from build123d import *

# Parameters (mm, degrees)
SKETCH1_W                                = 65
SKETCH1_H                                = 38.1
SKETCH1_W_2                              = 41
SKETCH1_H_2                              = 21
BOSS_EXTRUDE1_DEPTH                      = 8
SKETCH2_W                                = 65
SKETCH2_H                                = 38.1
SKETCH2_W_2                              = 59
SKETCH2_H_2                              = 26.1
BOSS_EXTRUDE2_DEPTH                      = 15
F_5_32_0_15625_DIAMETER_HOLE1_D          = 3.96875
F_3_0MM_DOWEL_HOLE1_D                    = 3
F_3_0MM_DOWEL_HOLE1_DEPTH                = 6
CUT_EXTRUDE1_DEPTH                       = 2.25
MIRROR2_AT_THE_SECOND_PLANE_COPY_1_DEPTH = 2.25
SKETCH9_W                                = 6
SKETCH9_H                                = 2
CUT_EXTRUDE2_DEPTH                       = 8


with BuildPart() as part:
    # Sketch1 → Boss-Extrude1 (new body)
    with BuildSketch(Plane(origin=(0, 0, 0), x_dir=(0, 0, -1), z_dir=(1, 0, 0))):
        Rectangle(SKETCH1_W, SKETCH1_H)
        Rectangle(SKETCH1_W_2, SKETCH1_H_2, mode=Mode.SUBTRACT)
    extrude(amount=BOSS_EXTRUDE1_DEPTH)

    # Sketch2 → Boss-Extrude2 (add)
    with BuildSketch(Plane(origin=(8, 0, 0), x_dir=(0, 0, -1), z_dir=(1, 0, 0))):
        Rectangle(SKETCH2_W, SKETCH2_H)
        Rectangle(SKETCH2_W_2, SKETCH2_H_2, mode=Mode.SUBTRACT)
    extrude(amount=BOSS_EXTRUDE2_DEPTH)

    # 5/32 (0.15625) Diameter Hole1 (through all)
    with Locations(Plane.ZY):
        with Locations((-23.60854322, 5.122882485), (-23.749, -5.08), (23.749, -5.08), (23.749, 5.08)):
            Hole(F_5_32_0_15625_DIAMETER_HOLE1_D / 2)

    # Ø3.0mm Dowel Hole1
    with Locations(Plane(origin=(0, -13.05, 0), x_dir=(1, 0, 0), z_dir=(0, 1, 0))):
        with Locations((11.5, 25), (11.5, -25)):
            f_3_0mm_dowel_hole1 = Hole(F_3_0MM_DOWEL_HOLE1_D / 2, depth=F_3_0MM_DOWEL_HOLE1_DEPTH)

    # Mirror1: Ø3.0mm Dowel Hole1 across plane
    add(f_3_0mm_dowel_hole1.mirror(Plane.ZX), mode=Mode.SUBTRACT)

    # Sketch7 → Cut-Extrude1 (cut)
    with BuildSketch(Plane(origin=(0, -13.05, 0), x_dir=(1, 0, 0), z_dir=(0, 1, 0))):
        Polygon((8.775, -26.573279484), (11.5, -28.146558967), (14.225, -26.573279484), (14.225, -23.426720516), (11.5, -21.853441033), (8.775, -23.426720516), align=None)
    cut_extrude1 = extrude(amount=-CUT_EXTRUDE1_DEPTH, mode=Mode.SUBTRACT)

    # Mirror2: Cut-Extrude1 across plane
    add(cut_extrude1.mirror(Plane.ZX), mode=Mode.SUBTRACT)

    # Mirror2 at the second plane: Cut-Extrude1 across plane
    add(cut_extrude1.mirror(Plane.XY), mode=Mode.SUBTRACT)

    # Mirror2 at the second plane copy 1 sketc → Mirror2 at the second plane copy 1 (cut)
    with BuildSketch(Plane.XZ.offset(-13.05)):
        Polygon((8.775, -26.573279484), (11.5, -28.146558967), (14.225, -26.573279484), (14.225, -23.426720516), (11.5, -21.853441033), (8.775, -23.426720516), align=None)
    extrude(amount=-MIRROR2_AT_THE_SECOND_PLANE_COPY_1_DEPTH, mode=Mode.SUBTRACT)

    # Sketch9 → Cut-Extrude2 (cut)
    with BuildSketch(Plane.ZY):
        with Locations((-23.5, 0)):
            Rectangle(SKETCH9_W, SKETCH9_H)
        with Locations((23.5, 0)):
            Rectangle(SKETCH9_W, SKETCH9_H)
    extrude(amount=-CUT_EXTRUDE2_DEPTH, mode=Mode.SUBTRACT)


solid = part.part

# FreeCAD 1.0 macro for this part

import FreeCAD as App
import Part
import Sketcher

V = App.Vector
Q = App.Units.Quantity

doc = App.newDocument("Part")
body = doc.addObject("PartDesign::Body", "Body")

# Sketch on YZ plane
sketch1 = doc.addObject("Sketcher::SketchObject", "Sketch")
body.addObject(sketch1)
sketch1.AttachmentSupport = (doc.YZ_Plane, [""])
sketch1.MapMode = "FlatFace"
sketch1.addGeometry([
    Part.LineSegment(V(19, 32, 0), V(-19, 32, 0)),  # 0
    Part.LineSegment(V(-19, 32, 0), V(-19, -32, 0)),  # 1
    Part.LineSegment(V(-19, -32, 0), V(19, -32, 0)),  # 2
    Part.LineSegment(V(19, -32, 0), V(19, 32, 0)),  # 3
    Part.LineSegment(V(-10, -20, 0), V(-10, 20, 0)),  # 4
    Part.LineSegment(V(-10, 20, 0), V(10, 20, 0)),  # 5
    Part.LineSegment(V(10, 20, 0), V(10, -20, 0)),  # 6
    Part.LineSegment(V(10, -20, 0), V(-10, -20, 0)),  # 7
], False)
sketch1.addConstraint([
    Sketcher.Constraint("Coincident", 0, 2, 1, 1),
    Sketcher.Constraint("Coincident", 1, 2, 2, 1),
    Sketcher.Constraint("Coincident", 2, 2, 3, 1),
    Sketcher.Constraint("Coincident", 3, 2, 0, 1),
    Sketcher.Constraint("Coincident", 4, 2, 5, 1),
    Sketcher.Constraint("Coincident", 5, 2, 6, 1),
    Sketcher.Constraint("Coincident", 6, 2, 7, 1),
    Sketcher.Constraint("Coincident", 7, 2, 4, 1),
    Sketcher.Constraint("Horizontal", 0),
    Sketcher.Constraint("Vertical", 1),
    Sketcher.Constraint("Horizontal", 2),
    Sketcher.Constraint("Vertical", 3),
    Sketcher.Constraint("Vertical", 4),
    Sketcher.Constraint("Horizontal", 5),
    Sketcher.Constraint("Vertical", 6),
    Sketcher.Constraint("Horizontal", 7),
    Sketcher.Constraint("Symmetric", 0, 2, 2, 2, -1, 1),
    Sketcher.Constraint("Symmetric", 4, 2, 6, 2, -1, 1),
    Sketcher.Constraint("DistanceX", 5, 1, 5, 2, 21.0),
    Sketcher.Constraint("DistanceY", 1, 2, 1, 1, 65.0),
    Sketcher.Constraint("DistanceY", 4, 1, 4, 2, 41.0),
    Sketcher.Constraint("DistanceX", 0, 2, 0, 1, 38.1),
])
pad1 = doc.addObject("PartDesign::Pad", "Pad")
body.addObject(pad1)
pad1.Profile = sketch1
pad1.Length = 8

# Sketch on YZ plane
sketch2 = doc.addObject("Sketcher::SketchObject", "Sketch001")
body.addObject(sketch2)
sketch2.AttachmentSupport = (doc.YZ_Plane, [""])
sketch2.MapMode = "FlatFace"
sketch2.AttachmentOffset = App.Placement(V(0, 0, 8), App.Rotation())
sketch2.addGeometry([
    Part.LineSegment(V(19, 32, 0), V(-19, 32, 0)),  # 0
    Part.LineSegment(V(-19, 32, 0), V(-19, -32, 0)),  # 1
    Part.LineSegment(V(-19, -32, 0), V(19, -32, 0)),  # 2
    Part.LineSegment(V(19, -32, 0), V(19, 32, 0)),  # 3
    Part.LineSegment(V(-13, -30, 0), V(-13, 30, 0)),  # 4
    Part.LineSegment(V(-13, 30, 0), V(13, 30, 0)),  # 5
    Part.LineSegment(V(13, 30, 0), V(13, -30, 0)),  # 6
    Part.LineSegment(V(13, -30, 0), V(-13, -30, 0)),  # 7
], False)
sketch2.addConstraint([
    Sketcher.Constraint("Coincident", 0, 2, 1, 1),
    Sketcher.Constraint("Coincident", 1, 2, 2, 1),
    Sketcher.Constraint("Coincident", 2, 2, 3, 1),
    Sketcher.Constraint("Coincident", 3, 2, 0, 1),
    Sketcher.Constraint("Coincident", 4, 2, 5, 1),
    Sketcher.Constraint("Coincident", 5, 2, 6, 1),
    Sketcher.Constraint("Coincident", 6, 2, 7, 1),
    Sketcher.Constraint("Coincident", 7, 2, 4, 1),
    Sketcher.Constraint("Horizontal", 0),
    Sketcher.Constraint("Vertical", 1),
    Sketcher.Constraint("Horizontal", 2),
    Sketcher.Constraint("Vertical", 3),
    Sketcher.Constraint("Vertical", 4),
    Sketcher.Constraint("Horizontal", 5),
    Sketcher.Constraint("Vertical", 6),
    Sketcher.Constraint("Horizontal", 7),
    Sketcher.Constraint("Symmetric", 0, 2, 2, 2, -1, 1),
    Sketcher.Constraint("Symmetric", 4, 2, 6, 2, -1, 1),
    Sketcher.Constraint("DistanceY", 1, 2, 1, 1, 65.0),
    Sketcher.Constraint("DistanceY", 4, 1, 4, 2, 59.0),
    Sketcher.Constraint("DistanceX", 0, 2, 0, 1, 38.1),
    Sketcher.Constraint("DistanceX", 5, 1, 5, 2, 26.1),
])
pad2 = doc.addObject("PartDesign::Pad", "Pad001")
body.addObject(pad2)
pad2.Profile = sketch2
pad2.Length = 15

# Sketch on YZ plane
sketch3 = doc.addObject("Sketcher::SketchObject", "Sketch002")
body.addObject(sketch3)
sketch3.AttachmentSupport = (doc.YZ_Plane, [""])
sketch3.MapMode = "FlatFace"
sketch3.addGeometry([
    Part.Circle(V(5.1, -23.6, 0), V(0, 0, 1), 2),
    Part.Circle(V(-5.1, -23.7, 0), V(0, 0, 1), 2),
    Part.Circle(V(-5.1, 23.7, 0), V(0, 0, 1), 2),
    Part.Circle(V(5.1, 23.7, 0), V(0, 0, 1), 2),
], False)
sketch3.addConstraint([
    Sketcher.Constraint("Equal", 0, 1),
    Sketcher.Constraint("Equal", 1, 2),
    Sketcher.Constraint("Equal", 2, 3),
    Sketcher.Constraint("Symmetric", 1, 3, 3, 3, -1, 1),
    Sketcher.Constraint("Symmetric", 2, 3, 3, 3, -2),
    Sketcher.Constraint("Diameter", 0, 3.96875),
    Sketcher.Constraint("DistanceX", 1, 3, -1, 1, 5.08),
    Sketcher.Constraint("DistanceY", 1, 3, -1, 1, 23.749),
    Sketcher.Constraint("DistanceX", -1, 1, 0, 3, 5.122882),
    Sketcher.Constraint("DistanceY", 0, 3, -1, 1, 23.608543),
])
doc.recompute()
hole = doc.addObject("PartDesign::Hole", "Hole")
body.addObject(hole)
hole.Profile = sketch3
hole.ThreadType = "None"
hole.Diameter = 3.96875
hole.DepthType = "ThroughAll"
hole.Reversed = True

# Sketch on XZ plane
sketch4 = doc.addObject("Sketcher::SketchObject", "Sketch003")
body.addObject(sketch4)
sketch4.AttachmentSupport = (doc.XZ_Plane, [""])
sketch4.MapMode = "FlatFace"
sketch4.AttachmentOffset = App.Placement(V(0, 0, 13.05), App.Rotation())
sketch4.addGeometry([
    Part.Circle(V(11.5, -25, 0), V(0, 0, 1), 1.5),
    Part.Circle(V(11.5, 25, 0), V(0, 0, 1), 1.5),
], False)
sketch4.addConstraint([
    Sketcher.Constraint("Equal", 0, 1),
    Sketcher.Constraint("Symmetric", 0, 3, 1, 3, -1),
    Sketcher.Constraint("Diameter", 0, 3.0),
    Sketcher.Constraint("DistanceY", 0, 3, -1, 1, 25.0),
    Sketcher.Constraint("DistanceX", -1, 1, 0, 3, 11.5),
])
doc.recompute()
hole2 = doc.addObject("PartDesign::Hole", "Hole001")
body.addObject(hole2)
hole2.Profile = sketch4
hole2.ThreadType = "None"
hole2.Diameter = 3
hole2.DepthType = "Dimension"
hole2.Depth = 6
hole2.DrillPoint = "Flat"
hole2.Reversed = True
doc.recompute()

mirrored = doc.addObject("PartDesign::Mirrored", "Mirrored")
body.addObject(mirrored)
mirrored.Originals = [hole2]
mirrored.MirrorPlane = (doc.XZ_Plane, [""])
body.Tip = mirrored

# Sketch on XZ plane
sketch5 = doc.addObject("Sketcher::SketchObject", "Sketch004")
body.addObject(sketch5)
sketch5.AttachmentSupport = (doc.XZ_Plane, [""])
sketch5.MapMode = "FlatFace"
sketch5.AttachmentOffset = App.Placement(V(0, 0, 13.05), App.Rotation())
sketch5.addGeometry([
    Part.LineSegment(V(8.8, 26.6, 0), V(11.5, 28.1, 0)),  # 0
    Part.LineSegment(V(11.5, 28.1, 0), V(14.2, 26.6, 0)),  # 1
    Part.LineSegment(V(14.2, 26.6, 0), V(14.2, 23.4, 0)),  # 2
    Part.LineSegment(V(14.2, 23.4, 0), V(11.5, 21.9, 0)),  # 3
    Part.LineSegment(V(11.5, 21.9, 0), V(8.8, 23.4, 0)),  # 4
    Part.LineSegment(V(8.8, 23.4, 0), V(8.8, 26.6, 0)),  # 5
], False)
sketch5.addConstraint([
    Sketcher.Constraint("Coincident", 0, 2, 1, 1),
    Sketcher.Constraint("Coincident", 1, 2, 2, 1),
    Sketcher.Constraint("Coincident", 2, 2, 3, 1),
    Sketcher.Constraint("Coincident", 3, 2, 4, 1),
    Sketcher.Constraint("Coincident", 4, 2, 5, 1),
    Sketcher.Constraint("Coincident", 5, 2, 0, 1),
    Sketcher.Constraint("Vertical", 2),
    Sketcher.Constraint("Vertical", 5),
    Sketcher.Constraint("Parallel", 0, 3),
    Sketcher.Constraint("Parallel", 1, 4),
    Sketcher.Constraint("Horizontal", 2, 2, 4, 2),
    Sketcher.Constraint("Horizontal", 1, 2, 5, 2),
    Sketcher.Constraint("Vertical", 0, 2, 3, 2),
    Sketcher.Constraint("Angle", 0, Q("30 deg")),
    Sketcher.Constraint("DistanceX", -1, 1, 0, 2, 11.5),
    Sketcher.Constraint("DistanceX", 4, 2, 2, 2, 5.45),
    Sketcher.Constraint("DistanceY", 2, 2, 2, 1, 3.146559),
    Sketcher.Constraint("DistanceY", -1, 1, 0, 2, 28.146559),
])
pocket1 = doc.addObject("PartDesign::Pocket", "Pocket")
body.addObject(pocket1)
pocket1.Profile = sketch5
pocket1.Length = 2.25
pocket1.Reversed = True
doc.recompute()

mirrored2 = doc.addObject("PartDesign::Mirrored", "Mirrored001")
body.addObject(mirrored2)
mirrored2.Originals = [pocket1]
mirrored2.MirrorPlane = (doc.XZ_Plane, [""])
body.Tip = mirrored2
doc.recompute()

mirrored3 = doc.addObject("PartDesign::Mirrored", "Mirrored002")
body.addObject(mirrored3)
mirrored3.Originals = [pocket1]
mirrored3.MirrorPlane = (doc.XY_Plane, [""])
body.Tip = mirrored3

# Sketch on XZ plane
sketch6 = doc.addObject("Sketcher::SketchObject", "Sketch005")
body.addObject(sketch6)
sketch6.AttachmentSupport = (doc.XZ_Plane, [""])
sketch6.MapMode = "FlatFace"
sketch6.AttachmentOffset = App.Placement(V(0, 0, -13.05), App.Rotation())
sketch6.addGeometry([
    Part.LineSegment(V(8.8, -26.6, 0), V(11.5, -28.1, 0)),  # 0
    Part.LineSegment(V(11.5, -28.1, 0), V(14.2, -26.6, 0)),  # 1
    Part.LineSegment(V(14.2, -26.6, 0), V(14.2, -23.4, 0)),  # 2
    Part.LineSegment(V(14.2, -23.4, 0), V(11.5, -21.9, 0)),  # 3
    Part.LineSegment(V(11.5, -21.9, 0), V(8.8, -23.4, 0)),  # 4
    Part.LineSegment(V(8.8, -23.4, 0), V(8.8, -26.6, 0)),  # 5
], False)
sketch6.addConstraint([
    Sketcher.Constraint("Coincident", 0, 2, 1, 1),
    Sketcher.Constraint("Coincident", 1, 2, 2, 1),
    Sketcher.Constraint("Coincident", 2, 2, 3, 1),
    Sketcher.Constraint("Coincident", 3, 2, 4, 1),
    Sketcher.Constraint("Coincident", 4, 2, 5, 1),
    Sketcher.Constraint("Coincident", 5, 2, 0, 1),
    Sketcher.Constraint("Vertical", 2),
    Sketcher.Constraint("Vertical", 5),
    Sketcher.Constraint("Parallel", 0, 3),
    Sketcher.Constraint("Parallel", 1, 4),
    Sketcher.Constraint("Horizontal", 2, 2, 4, 2),
    Sketcher.Constraint("Horizontal", 1, 2, 5, 2),
    Sketcher.Constraint("Vertical", 0, 2, 3, 2),
    Sketcher.Constraint("Angle", 0, Q("-30 deg")),
    Sketcher.Constraint("DistanceX", -1, 1, 0, 2, 11.5),
    Sketcher.Constraint("DistanceX", 4, 2, 2, 2, 5.45),
    Sketcher.Constraint("DistanceY", 2, 1, 2, 2, 3.146559),
    Sketcher.Constraint("DistanceY", 0, 2, -1, 1, 28.146559),
])
pocket2 = doc.addObject("PartDesign::Pocket", "Pocket001")
body.addObject(pocket2)
pocket2.Profile = sketch6
pocket2.Length = 2.25

# Sketch on YZ plane
sketch7 = doc.addObject("Sketcher::SketchObject", "Sketch006")
body.addObject(sketch7)
sketch7.AttachmentSupport = (doc.YZ_Plane, [""])
sketch7.MapMode = "FlatFace"
sketch7.addGeometry([
    Part.LineSegment(V(1, -26.5, 0), V(-1, -26.5, 0)),  # 0
    Part.LineSegment(V(-1, -26.5, 0), V(-1, -20.5, 0)),  # 1
    Part.LineSegment(V(-1, -20.5, 0), V(1, -20.5, 0)),  # 2
    Part.LineSegment(V(1, -20.5, 0), V(1, -26.5, 0)),  # 3
    Part.LineSegment(V(1, 20.5, 0), V(-1, 20.5, 0)),  # 4
    Part.LineSegment(V(-1, 20.5, 0), V(-1, 26.5, 0)),  # 5
    Part.LineSegment(V(-1, 26.5, 0), V(1, 26.5, 0)),  # 6
    Part.LineSegment(V(1, 26.5, 0), V(1, 20.5, 0)),  # 7
], False)
sketch7.addConstraint([
    Sketcher.Constraint("Coincident", 0, 2, 1, 1),
    Sketcher.Constraint("Coincident", 1, 2, 2, 1),
    Sketcher.Constraint("Coincident", 2, 2, 3, 1),
    Sketcher.Constraint("Coincident", 3, 2, 0, 1),
    Sketcher.Constraint("Coincident", 4, 2, 5, 1),
    Sketcher.Constraint("Coincident", 5, 2, 6, 1),
    Sketcher.Constraint("Coincident", 6, 2, 7, 1),
    Sketcher.Constraint("Coincident", 7, 2, 4, 1),
    Sketcher.Constraint("Horizontal", 0),
    Sketcher.Constraint("Vertical", 1),
    Sketcher.Constraint("Horizontal", 2),
    Sketcher.Constraint("Vertical", 3),
    Sketcher.Constraint("Horizontal", 4),
    Sketcher.Constraint("Vertical", 5),
    Sketcher.Constraint("Horizontal", 6),
    Sketcher.Constraint("Vertical", 7),
    Sketcher.Constraint("Symmetric", 2, 2, 4, 2, -1, 1),
    Sketcher.Constraint("Symmetric", 0, 2, 6, 2, -1, 1),
    Sketcher.Constraint("Vertical", 1, 2, 4, 2),
    Sketcher.Constraint("DistanceX", 0, 2, 0, 1, 2.0),
    Sketcher.Constraint("DistanceY", 1, 1, 1, 2, 6.0),
    Sketcher.Constraint("DistanceY", 1, 2, 4, 2, 41.0),
])
pocket3 = doc.addObject("PartDesign::Pocket", "Pocket002")
body.addObject(pocket3)
pocket3.Profile = sketch7
pocket3.Length = 8
pocket3.Reversed = True

doc.recompute()
